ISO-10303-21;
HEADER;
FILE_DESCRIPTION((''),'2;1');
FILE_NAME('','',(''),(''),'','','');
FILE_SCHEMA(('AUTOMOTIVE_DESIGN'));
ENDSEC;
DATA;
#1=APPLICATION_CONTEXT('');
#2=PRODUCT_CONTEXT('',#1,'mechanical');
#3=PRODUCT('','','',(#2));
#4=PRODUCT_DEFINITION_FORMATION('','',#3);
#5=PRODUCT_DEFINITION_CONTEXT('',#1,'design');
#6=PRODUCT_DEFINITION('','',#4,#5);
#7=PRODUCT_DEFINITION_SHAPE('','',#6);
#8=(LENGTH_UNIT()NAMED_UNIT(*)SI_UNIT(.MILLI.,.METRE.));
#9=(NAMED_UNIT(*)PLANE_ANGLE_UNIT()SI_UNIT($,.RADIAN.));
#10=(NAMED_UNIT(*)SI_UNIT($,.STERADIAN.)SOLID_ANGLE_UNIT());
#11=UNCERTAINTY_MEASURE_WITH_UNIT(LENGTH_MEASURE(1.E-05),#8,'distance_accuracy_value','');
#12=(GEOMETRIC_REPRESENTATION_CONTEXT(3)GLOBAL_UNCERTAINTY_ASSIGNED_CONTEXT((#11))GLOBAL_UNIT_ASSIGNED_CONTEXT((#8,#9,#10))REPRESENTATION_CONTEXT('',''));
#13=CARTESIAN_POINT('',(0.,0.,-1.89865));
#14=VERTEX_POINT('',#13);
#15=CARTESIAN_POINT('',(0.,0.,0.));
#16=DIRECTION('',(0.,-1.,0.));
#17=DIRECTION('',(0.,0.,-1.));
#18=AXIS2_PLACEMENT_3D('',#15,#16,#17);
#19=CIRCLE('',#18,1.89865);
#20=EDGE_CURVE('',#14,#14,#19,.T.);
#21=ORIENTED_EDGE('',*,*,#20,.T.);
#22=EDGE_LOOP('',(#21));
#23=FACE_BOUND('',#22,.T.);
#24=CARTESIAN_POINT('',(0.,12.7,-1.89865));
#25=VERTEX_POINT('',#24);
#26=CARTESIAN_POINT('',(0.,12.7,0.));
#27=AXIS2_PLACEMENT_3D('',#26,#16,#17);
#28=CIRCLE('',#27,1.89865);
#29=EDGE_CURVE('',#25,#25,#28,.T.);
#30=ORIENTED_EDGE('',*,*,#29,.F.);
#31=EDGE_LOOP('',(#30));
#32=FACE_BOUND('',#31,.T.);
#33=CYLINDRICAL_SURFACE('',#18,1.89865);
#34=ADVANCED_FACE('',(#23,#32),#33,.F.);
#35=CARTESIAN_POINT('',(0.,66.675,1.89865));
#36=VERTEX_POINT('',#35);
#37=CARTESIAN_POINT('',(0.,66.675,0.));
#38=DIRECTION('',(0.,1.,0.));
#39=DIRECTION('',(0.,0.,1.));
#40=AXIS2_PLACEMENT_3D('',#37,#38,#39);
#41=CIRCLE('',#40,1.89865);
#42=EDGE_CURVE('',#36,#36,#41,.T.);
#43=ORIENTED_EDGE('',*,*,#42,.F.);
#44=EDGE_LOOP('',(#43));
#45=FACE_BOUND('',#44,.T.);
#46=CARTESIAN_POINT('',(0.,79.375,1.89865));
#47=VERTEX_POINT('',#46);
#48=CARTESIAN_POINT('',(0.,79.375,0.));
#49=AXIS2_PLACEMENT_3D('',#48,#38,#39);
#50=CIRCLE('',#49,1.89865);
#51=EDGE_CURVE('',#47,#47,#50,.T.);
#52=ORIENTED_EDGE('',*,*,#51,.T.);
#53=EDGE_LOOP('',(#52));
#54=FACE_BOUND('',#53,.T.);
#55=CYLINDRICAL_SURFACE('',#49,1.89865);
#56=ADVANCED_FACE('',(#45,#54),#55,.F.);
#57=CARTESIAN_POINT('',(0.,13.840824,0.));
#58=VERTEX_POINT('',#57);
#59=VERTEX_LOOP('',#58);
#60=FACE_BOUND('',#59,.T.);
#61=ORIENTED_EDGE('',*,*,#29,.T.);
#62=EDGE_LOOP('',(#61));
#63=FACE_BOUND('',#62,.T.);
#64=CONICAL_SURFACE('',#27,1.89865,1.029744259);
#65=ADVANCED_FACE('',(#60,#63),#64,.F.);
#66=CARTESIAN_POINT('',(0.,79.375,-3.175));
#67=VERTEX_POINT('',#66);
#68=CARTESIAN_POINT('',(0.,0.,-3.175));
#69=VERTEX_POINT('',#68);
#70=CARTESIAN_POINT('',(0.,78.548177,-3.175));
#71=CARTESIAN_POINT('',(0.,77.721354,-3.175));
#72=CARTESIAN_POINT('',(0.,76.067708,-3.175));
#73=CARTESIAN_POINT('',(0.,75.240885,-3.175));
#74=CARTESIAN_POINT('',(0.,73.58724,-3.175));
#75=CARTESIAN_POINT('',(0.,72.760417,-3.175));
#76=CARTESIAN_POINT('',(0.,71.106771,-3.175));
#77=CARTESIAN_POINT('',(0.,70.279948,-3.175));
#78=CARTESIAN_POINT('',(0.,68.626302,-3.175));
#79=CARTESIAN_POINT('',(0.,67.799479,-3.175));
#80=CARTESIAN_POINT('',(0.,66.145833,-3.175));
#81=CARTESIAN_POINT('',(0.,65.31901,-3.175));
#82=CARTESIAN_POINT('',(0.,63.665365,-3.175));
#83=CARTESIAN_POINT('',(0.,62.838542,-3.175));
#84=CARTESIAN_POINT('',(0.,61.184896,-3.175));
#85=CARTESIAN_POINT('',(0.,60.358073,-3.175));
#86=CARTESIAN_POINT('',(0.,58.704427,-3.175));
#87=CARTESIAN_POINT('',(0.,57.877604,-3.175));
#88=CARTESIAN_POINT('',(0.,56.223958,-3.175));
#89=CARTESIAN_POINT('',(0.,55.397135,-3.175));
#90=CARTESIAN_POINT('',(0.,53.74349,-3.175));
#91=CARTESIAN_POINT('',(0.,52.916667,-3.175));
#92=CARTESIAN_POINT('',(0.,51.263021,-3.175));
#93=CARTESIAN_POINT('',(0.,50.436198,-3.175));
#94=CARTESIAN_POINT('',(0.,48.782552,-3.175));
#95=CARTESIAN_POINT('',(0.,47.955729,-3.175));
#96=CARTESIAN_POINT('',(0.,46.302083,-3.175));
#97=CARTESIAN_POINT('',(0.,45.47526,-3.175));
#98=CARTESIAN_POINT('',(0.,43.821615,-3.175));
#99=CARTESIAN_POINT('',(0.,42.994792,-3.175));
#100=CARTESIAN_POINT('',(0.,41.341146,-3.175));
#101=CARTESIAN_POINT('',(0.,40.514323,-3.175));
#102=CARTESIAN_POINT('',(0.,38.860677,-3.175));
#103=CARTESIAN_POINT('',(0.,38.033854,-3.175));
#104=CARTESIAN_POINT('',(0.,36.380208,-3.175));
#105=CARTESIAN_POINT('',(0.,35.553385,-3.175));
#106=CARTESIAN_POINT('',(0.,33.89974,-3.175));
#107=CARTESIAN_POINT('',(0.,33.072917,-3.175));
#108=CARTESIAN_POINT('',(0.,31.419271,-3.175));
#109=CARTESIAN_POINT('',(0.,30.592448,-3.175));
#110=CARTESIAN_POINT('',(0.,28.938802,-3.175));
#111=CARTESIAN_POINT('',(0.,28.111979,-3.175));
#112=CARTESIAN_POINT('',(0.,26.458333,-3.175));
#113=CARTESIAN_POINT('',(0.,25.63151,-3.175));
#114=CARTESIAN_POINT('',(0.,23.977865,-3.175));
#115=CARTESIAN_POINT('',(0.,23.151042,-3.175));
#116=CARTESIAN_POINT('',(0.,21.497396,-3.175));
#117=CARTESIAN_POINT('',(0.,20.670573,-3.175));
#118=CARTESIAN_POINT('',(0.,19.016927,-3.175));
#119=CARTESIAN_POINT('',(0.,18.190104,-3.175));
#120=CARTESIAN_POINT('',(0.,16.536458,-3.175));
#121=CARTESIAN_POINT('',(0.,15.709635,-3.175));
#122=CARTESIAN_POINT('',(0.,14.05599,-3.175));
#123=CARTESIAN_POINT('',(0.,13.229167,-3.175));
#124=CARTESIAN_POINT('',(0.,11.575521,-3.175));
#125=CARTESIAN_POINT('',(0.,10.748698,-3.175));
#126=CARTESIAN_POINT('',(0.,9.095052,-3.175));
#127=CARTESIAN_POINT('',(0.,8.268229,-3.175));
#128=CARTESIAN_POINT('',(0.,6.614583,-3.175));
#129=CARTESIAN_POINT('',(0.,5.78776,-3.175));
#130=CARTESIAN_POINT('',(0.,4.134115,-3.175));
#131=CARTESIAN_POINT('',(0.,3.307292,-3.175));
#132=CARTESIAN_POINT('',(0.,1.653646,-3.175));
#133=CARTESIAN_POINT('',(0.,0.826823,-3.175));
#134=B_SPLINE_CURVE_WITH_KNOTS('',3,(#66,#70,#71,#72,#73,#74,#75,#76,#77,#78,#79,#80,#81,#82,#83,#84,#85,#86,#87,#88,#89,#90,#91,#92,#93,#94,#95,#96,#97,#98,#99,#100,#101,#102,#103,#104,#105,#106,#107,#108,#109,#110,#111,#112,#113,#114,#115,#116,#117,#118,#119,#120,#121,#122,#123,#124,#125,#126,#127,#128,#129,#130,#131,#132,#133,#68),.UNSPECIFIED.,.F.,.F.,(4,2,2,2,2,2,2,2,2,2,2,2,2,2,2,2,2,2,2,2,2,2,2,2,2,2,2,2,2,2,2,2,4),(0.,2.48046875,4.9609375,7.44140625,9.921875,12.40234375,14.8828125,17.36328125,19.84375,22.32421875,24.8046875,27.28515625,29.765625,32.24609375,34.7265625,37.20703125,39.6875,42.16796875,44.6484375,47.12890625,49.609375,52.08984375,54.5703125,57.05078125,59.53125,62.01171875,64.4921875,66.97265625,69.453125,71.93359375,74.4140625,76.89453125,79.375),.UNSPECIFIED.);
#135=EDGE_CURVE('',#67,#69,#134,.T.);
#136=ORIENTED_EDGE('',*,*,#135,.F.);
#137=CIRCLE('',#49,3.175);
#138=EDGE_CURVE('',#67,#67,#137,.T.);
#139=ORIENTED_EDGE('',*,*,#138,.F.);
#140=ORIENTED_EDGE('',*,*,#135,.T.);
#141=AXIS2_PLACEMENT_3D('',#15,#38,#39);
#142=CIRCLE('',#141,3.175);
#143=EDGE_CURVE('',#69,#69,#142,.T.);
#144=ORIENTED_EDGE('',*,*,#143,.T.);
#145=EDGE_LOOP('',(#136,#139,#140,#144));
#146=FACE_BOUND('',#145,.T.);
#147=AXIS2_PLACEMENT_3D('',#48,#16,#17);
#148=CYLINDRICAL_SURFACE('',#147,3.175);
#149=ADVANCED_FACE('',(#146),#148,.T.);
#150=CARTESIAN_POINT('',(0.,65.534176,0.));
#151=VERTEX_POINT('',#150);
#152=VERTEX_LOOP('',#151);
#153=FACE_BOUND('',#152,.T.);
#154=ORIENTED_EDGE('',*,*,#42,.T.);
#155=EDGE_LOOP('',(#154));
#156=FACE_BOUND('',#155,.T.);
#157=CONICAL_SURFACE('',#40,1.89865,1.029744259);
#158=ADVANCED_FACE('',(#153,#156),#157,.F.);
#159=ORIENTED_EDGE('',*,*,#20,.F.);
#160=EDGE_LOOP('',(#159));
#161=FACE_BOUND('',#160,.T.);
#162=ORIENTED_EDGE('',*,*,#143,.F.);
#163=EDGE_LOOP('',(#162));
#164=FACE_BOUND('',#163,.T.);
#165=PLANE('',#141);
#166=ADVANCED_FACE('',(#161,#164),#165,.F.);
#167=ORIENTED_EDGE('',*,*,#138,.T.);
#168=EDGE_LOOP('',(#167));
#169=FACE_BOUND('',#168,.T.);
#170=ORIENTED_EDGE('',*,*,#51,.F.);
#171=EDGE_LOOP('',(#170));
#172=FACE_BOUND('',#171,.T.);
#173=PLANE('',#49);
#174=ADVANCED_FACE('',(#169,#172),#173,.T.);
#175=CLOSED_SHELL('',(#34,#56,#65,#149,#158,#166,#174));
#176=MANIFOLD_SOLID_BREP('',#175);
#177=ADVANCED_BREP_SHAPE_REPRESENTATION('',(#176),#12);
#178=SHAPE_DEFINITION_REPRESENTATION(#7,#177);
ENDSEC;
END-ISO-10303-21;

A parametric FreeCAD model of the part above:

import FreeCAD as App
import Part
import Sketcher
Q = App.Units.Quantity

doc = App.newDocument("Part")
body = doc.addObject("PartDesign::Body", "Body")

# Sketch on XZ plane
sketch1 = body.newObject("Sketcher::SketchObject", "Sketch")
sketch1.AttachmentSupport = (doc.getObject("XZ_Plane"), [""])
sketch1.MapMode = "FlatFace"
sketch1.addGeometry(Part.Circle(App.Vector(0, 0, 0), App.Vector(0, 0, 1), 3.175), False)
sketch1.addConstraint([
    Sketcher.Constraint("Coincident", 0, 3, -1, 1),
    Sketcher.Constraint("Diameter", 0, Q("0.25 in")),
])
pad1 = body.newObject("PartDesign::Pad", "Pad")
pad1.Profile = sketch1
pad1.Length = Q("3.125 in")
pad1.Reversed = True

# Sketch on XZ plane
sketch2 = body.newObject("Sketcher::SketchObject", "Sketch001")
sketch2.AttachmentSupport = (doc.getObject("XZ_Plane"), [""])
sketch2.MapMode = "FlatFace"
sketch2.AttachmentOffset = App.Placement(App.Vector(0, 0, -3.125 * 25.4), App.Rotation())
sketch2.addGeometry(Part.Circle(App.Vector(0, 0, 0), App.Vector(0, 0, 1), 1.89865), False)
sketch2.addConstraint([
    Sketcher.Constraint("Coincident", 0, 3, -1, 1),
    Sketcher.Constraint("Diameter", 0, Q("0.1495 in")),
])
doc.recompute()
hole = body.newObject("PartDesign::Hole", "Hole")
hole.Profile = sketch2
hole.ThreadType = "None"
hole.Diameter = Q("0.1495 in")
hole.DepthType = "Dimension"
hole.Depth = Q("0.5 in")
hole.DrillPoint = "Angled"
hole.DrillPointAngle = 118
hole.Reversed = True

# Sketch on XZ plane
sketch3 = body.newObject("Sketcher::SketchObject", "Sketch002")
sketch3.AttachmentSupport = (doc.getObject("XZ_Plane"), [""])
sketch3.MapMode = "FlatFace"
sketch3.addGeometry(Part.Circle(App.Vector(0, 0, 0), App.Vector(0, 0, 1), 1.89865), False)
sketch3.addConstraint([
    Sketcher.Constraint("Coincident", 0, 3, -1, 1),
    Sketcher.Constraint("Diameter", 0, Q("0.1495 in")),
])
doc.recompute()
hole2 = body.newObject("PartDesign::Hole", "Hole001")
hole2.Profile = sketch3
hole2.ThreadType = "None"
hole2.Diameter = Q("0.1495 in")
hole2.DepthType = "Dimension"
hole2.Depth = Q("0.5 in")
hole2.DrillPoint = "Angled"
hole2.DrillPointAngle = 118

doc.recompute()
